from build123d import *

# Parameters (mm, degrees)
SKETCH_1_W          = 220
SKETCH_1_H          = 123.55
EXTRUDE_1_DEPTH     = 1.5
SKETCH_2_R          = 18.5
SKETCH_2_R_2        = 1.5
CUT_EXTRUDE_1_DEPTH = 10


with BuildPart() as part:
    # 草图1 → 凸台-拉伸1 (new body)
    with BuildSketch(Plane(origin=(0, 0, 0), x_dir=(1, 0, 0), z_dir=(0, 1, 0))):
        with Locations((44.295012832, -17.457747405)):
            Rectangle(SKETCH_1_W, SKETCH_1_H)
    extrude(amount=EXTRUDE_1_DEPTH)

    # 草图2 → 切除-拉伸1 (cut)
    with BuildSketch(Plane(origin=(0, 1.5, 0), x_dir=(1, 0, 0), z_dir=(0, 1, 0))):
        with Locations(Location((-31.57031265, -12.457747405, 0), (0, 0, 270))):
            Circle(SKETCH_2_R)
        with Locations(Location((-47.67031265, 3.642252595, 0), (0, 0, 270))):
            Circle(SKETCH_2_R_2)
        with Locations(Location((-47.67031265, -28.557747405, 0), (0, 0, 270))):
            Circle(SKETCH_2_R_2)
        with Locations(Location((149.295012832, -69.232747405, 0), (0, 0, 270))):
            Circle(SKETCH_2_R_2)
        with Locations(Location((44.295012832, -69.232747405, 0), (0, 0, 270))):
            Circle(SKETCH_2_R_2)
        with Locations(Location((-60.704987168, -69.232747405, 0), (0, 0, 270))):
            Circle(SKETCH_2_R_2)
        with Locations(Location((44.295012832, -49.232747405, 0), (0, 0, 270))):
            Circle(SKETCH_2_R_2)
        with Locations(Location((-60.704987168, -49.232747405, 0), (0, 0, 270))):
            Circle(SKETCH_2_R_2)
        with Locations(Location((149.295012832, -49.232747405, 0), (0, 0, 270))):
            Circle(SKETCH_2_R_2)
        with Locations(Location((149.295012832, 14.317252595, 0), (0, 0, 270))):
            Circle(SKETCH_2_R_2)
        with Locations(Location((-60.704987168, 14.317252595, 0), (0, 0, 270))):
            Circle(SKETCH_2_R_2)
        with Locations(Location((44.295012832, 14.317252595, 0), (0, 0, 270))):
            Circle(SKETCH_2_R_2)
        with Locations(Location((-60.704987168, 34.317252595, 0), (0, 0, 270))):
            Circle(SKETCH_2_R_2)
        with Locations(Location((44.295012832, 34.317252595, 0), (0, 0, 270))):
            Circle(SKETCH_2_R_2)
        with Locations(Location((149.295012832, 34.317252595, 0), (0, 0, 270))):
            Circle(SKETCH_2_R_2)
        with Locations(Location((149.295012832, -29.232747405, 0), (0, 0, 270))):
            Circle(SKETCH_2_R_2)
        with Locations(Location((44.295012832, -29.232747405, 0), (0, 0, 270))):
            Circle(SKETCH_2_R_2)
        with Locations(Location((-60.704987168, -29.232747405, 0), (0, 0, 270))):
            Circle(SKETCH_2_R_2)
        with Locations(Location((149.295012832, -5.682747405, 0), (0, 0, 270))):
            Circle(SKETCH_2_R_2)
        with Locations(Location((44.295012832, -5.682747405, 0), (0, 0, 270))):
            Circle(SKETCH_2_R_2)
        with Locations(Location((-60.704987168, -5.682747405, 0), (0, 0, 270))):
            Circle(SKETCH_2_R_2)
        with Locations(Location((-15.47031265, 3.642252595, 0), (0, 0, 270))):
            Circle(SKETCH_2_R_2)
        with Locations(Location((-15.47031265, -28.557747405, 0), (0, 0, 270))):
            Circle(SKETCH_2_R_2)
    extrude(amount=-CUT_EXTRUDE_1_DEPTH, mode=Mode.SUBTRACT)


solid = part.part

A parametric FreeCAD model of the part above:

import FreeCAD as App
import Part
import Sketcher


def add_polygon(sketch, points):
    """Adds a closed chain of lines whose ends are joined by coincident constraints."""
    first, n = sketch.GeometryCount, len(points)
    for a, b in zip(points, points[1:] + points[:1]):
        sketch.addGeometry(Part.LineSegment(App.Vector(*a, 0), App.Vector(*b, 0)), False)
    for i in range(n):
        sketch.addConstraint(Sketcher.Constraint("Coincident", first + i, 2, first + (i + 1) % n, 1))

doc = App.newDocument("Part")
params = doc.addObject("Spreadsheet::Sheet", "Params")
for row, (alias, value) in enumerate([
    ("sketch1_width", "220 mm"),
    ("sketch1_height", "123.55 mm"),
    ("pad1_length", "1.5 mm"),
    ("sketch2_diameter", "37 mm"),
    ("sketch2_diameter2", "3 mm"),
    ("pocket1_length", "10 mm"),
], start=1):
    params.set(f"A{row}", alias)
    params.set(f"B{row}", "=" + value)
    params.setAlias(f"B{row}", alias)

body = doc.addObject("PartDesign::Body", "Body")

sketch1 = doc.addObject("Sketcher::SketchObject", "Sketch")
body.addObject(sketch1)
sketch1.AttachmentSupport = (doc.XZ_Plane, [""])
sketch1.MapMode = "FlatFace"
add_polygon(sketch1, [(-66, -44), (-66, 79), (154, 79), (154, -44)])
sketch1.addConstraint([
    Sketcher.Constraint("Vertical", 0),
    Sketcher.Constraint("Horizontal", 1),
    Sketcher.Constraint("Vertical", 2),
    Sketcher.Constraint("Horizontal", 3),
    Sketcher.Constraint("DistanceX", 1, 1, 1, 2, 220.0),
    Sketcher.Constraint("DistanceY", 0, 1, 0, 2, 123.55),
    Sketcher.Constraint("DistanceX", 0, 2, -1, 1, 65.704987),
    Sketcher.Constraint("DistanceY", -1, 1, 0, 2, 79.232747),
])
sketch1.setExpression("Constraints[8]", "Params.sketch1_width")
sketch1.setExpression("Constraints[9]", "Params.sketch1_height")
pad1 = doc.addObject("PartDesign::Pad", "Pad")
body.addObject(pad1)
pad1.Profile = sketch1
pad1.setExpression("Length", "Params.pad1_length")
pad1.Reversed = True

sketch2 = doc.addObject("Sketcher::SketchObject", "Sketch001")
body.addObject(sketch2)
sketch2.AttachmentSupport = (doc.XZ_Plane, [""])
sketch2.MapMode = "FlatFace"
sketch2.AttachmentOffset = App.Placement(App.Vector(0, 0, -1.5), App.Rotation())
sketch2.addGeometry([
    Part.Circle(App.Vector(-31.6, 12.5, 0), App.Vector(0, 0, 1), 18.5),
    Part.Circle(App.Vector(-47.7, -3.6, 0), App.Vector(0, 0, 1), 1.5),
    Part.Circle(App.Vector(-47.7, 28.6, 0), App.Vector(0, 0, 1), 1.5),
    Part.Circle(App.Vector(149.3, 69.2, 0), App.Vector(0, 0, 1), 1.5),
    Part.Circle(App.Vector(44.3, 69.2, 0), App.Vector(0, 0, 1), 1.5),
    Part.Circle(App.Vector(-60.7, 69.2, 0), App.Vector(0, 0, 1), 1.5),
    Part.Circle(App.Vector(44.3, 49.2, 0), App.Vector(0, 0, 1), 1.5),
    Part.Circle(App.Vector(-60.7, 49.2, 0), App.Vector(0, 0, 1), 1.5),
    Part.Circle(App.Vector(149.3, 49.2, 0), App.Vector(0, 0, 1), 1.5),
    Part.Circle(App.Vector(149.3, -14.3, 0), App.Vector(0, 0, 1), 1.5),
    Part.Circle(App.Vector(-60.7, -14.3, 0), App.Vector(0, 0, 1), 1.5),
    Part.Circle(App.Vector(44.3, -14.3, 0), App.Vector(0, 0, 1), 1.5),
    Part.Circle(App.Vector(-60.7, -34.3, 0), App.Vector(0, 0, 1), 1.5),
    Part.Circle(App.Vector(44.3, -34.3, 0), App.Vector(0, 0, 1), 1.5),
    Part.Circle(App.Vector(149.3, -34.3, 0), App.Vector(0, 0, 1), 1.5),
    Part.Circle(App.Vector(149.3, 29.2, 0), App.Vector(0, 0, 1), 1.5),
    Part.Circle(App.Vector(44.3, 29.2, 0), App.Vector(0, 0, 1), 1.5),
    Part.Circle(App.Vector(-60.7, 29.2, 0), App.Vector(0, 0, 1), 1.5),
    Part.Circle(App.Vector(149.3, 5.7, 0), App.Vector(0, 0, 1), 1.5),
    Part.Circle(App.Vector(44.3, 5.7, 0), App.Vector(0, 0, 1), 1.5),
    Part.Circle(App.Vector(-60.7, 5.7, 0), App.Vector(0, 0, 1), 1.5),
    Part.Circle(App.Vector(-15.5, -3.6, 0), App.Vector(0, 0, 1), 1.5),
    Part.Circle(App.Vector(-15.5, 28.6, 0), App.Vector(0, 0, 1), 1.5),
], False)
sketch2.addConstraint([
    Sketcher.Constraint("Equal", 1, 2),
    Sketcher.Constraint("Equal", 2, 3),
    Sketcher.Constraint("Equal", 3, 4),
    Sketcher.Constraint("Equal", 4, 5),
    Sketcher.Constraint("Equal", 5, 6),
    Sketcher.Constraint("Equal", 6, 7),
    Sketcher.Constraint("Equal", 7, 8),
    Sketcher.Constraint("Equal", 8, 9),
    Sketcher.Constraint("Equal", 9, 10),
    Sketcher.Constraint("Equal", 10, 11),
    Sketcher.Constraint("Equal", 11, 12),
    Sketcher.Constraint("Equal", 12, 13),
    Sketcher.Constraint("Equal", 13, 14),
    Sketcher.Constraint("Equal", 14, 15),
    Sketcher.Constraint("Equal", 15, 16),
    Sketcher.Constraint("Equal", 16, 17),
    Sketcher.Constraint("Equal", 17, 18),
    Sketcher.Constraint("Equal", 18, 19),
    Sketcher.Constraint("Equal", 19, 20),
    Sketcher.Constraint("Equal", 20, 21),
    Sketcher.Constraint("Equal", 21, 22),
    Sketcher.Constraint("Horizontal", 3, 3, 4, 3),
    Sketcher.Constraint("Horizontal", 4, 3, 5, 3),
    Sketcher.Constraint("Horizontal", 6, 3, 7, 3),
    Sketcher.Constraint("Horizontal", 7, 3, 8, 3),
    Sketcher.Constraint("Horizontal", 9, 3, 10, 3),
    Sketcher.Constraint("Horizontal", 10, 3, 11, 3),
    Sketcher.Constraint("Horizontal", 12, 3, 13, 3),
    Sketcher.Constraint("Horizontal", 13, 3, 14, 3),
    Sketcher.Constraint("Horizontal", 15, 3, 16, 3),
    Sketcher.Constraint("Horizontal", 16, 3, 17, 3),
    Sketcher.Constraint("Horizontal", 18, 3, 19, 3),
    Sketcher.Constraint("Horizontal", 19, 3, 20, 3),
    Sketcher.Constraint("Horizontal", 1, 3, 21, 3),
    Sketcher.Constraint("Horizontal", 2, 3, 22, 3),
    Sketcher.Constraint("Vertical", 1, 3, 2, 3),
    Sketcher.Constraint("Vertical", 4, 3, 6, 3),
    Sketcher.Constraint("Vertical", 5, 3, 7, 3),
    Sketcher.Constraint("Vertical", 3, 3, 8, 3),
    Sketcher.Constraint("Vertical", 8, 3, 9, 3),
    Sketcher.Constraint("Vertical", 7, 3, 10, 3),
    Sketcher.Constraint("Vertical", 6, 3, 11, 3),
    Sketcher.Constraint("Vertical", 10, 3, 12, 3),
    Sketcher.Constraint("Vertical", 11, 3, 13, 3),
    Sketcher.Constraint("Vertical", 9, 3, 14, 3),
    Sketcher.Constraint("Vertical", 14, 3, 15, 3),
    Sketcher.Constraint("Vertical", 13, 3, 16, 3),
    Sketcher.Constraint("Vertical", 12, 3, 17, 3),
    Sketcher.Constraint("Vertical", 15, 3, 18, 3),
    Sketcher.Constraint("Vertical", 16, 3, 19, 3),
    Sketcher.Constraint("Vertical", 17, 3, 20, 3),
    Sketcher.Constraint("Vertical", 21, 3, 22, 3),
    Sketcher.Constraint("Diameter", 0, 37.0),
    Sketcher.Constraint("Diameter", 1, 3.0),
    Sketcher.Constraint("DistanceX", 4, 3, 3, 3, 105.0),
    Sketcher.Constraint("DistanceX", 5, 3, 4, 3, 105.0),
    Sketcher.Constraint("DistanceY", 6, 3, 4, 3, 20.0),
    Sketcher.Constraint("DistanceY", 12, 3, 10, 3, 20.0),
    Sketcher.Constraint("DistanceY", 15, 3, 8, 3, 20.0),
    Sketcher.Constraint("DistanceY", 9, 3, 18, 3, 20.0),
    Sketcher.Constraint("DistanceX", 1, 3, 0, 3, 16.1),
    Sketcher.Constraint("DistanceY", 1, 3, 0, 3, 16.1),
    Sketcher.Constraint("DistanceY", 0, 3, 2, 3, 16.1),
    Sketcher.Constraint("DistanceX", 0, 3, 21, 3, 16.1),
    Sketcher.Constraint("DistanceY", 9, 3, 8, 3, 63.55),
    Sketcher.Constraint("DistanceY", 0, 3, 3, 3, 56.775),
    Sketcher.Constraint("DistanceX", 0, 3, -1, 1, 31.570313),
    Sketcher.Constraint("DistanceY", -1, 1, 0, 3, 12.457747),
    Sketcher.Constraint("DistanceX", -1, 1, 3, 3, 149.295013),
])
sketch2.setExpression("Constraints[52]", "Params.sketch2_diameter")
sketch2.setExpression("Constraints[53]", "Params.sketch2_diameter2")
pocket1 = doc.addObject("PartDesign::Pocket", "Pocket")
body.addObject(pocket1)
pocket1.Profile = sketch2
pocket1.setExpression("Length", "Params.pocket1_length")
pocket1.Reversed = True

doc.recompute()
